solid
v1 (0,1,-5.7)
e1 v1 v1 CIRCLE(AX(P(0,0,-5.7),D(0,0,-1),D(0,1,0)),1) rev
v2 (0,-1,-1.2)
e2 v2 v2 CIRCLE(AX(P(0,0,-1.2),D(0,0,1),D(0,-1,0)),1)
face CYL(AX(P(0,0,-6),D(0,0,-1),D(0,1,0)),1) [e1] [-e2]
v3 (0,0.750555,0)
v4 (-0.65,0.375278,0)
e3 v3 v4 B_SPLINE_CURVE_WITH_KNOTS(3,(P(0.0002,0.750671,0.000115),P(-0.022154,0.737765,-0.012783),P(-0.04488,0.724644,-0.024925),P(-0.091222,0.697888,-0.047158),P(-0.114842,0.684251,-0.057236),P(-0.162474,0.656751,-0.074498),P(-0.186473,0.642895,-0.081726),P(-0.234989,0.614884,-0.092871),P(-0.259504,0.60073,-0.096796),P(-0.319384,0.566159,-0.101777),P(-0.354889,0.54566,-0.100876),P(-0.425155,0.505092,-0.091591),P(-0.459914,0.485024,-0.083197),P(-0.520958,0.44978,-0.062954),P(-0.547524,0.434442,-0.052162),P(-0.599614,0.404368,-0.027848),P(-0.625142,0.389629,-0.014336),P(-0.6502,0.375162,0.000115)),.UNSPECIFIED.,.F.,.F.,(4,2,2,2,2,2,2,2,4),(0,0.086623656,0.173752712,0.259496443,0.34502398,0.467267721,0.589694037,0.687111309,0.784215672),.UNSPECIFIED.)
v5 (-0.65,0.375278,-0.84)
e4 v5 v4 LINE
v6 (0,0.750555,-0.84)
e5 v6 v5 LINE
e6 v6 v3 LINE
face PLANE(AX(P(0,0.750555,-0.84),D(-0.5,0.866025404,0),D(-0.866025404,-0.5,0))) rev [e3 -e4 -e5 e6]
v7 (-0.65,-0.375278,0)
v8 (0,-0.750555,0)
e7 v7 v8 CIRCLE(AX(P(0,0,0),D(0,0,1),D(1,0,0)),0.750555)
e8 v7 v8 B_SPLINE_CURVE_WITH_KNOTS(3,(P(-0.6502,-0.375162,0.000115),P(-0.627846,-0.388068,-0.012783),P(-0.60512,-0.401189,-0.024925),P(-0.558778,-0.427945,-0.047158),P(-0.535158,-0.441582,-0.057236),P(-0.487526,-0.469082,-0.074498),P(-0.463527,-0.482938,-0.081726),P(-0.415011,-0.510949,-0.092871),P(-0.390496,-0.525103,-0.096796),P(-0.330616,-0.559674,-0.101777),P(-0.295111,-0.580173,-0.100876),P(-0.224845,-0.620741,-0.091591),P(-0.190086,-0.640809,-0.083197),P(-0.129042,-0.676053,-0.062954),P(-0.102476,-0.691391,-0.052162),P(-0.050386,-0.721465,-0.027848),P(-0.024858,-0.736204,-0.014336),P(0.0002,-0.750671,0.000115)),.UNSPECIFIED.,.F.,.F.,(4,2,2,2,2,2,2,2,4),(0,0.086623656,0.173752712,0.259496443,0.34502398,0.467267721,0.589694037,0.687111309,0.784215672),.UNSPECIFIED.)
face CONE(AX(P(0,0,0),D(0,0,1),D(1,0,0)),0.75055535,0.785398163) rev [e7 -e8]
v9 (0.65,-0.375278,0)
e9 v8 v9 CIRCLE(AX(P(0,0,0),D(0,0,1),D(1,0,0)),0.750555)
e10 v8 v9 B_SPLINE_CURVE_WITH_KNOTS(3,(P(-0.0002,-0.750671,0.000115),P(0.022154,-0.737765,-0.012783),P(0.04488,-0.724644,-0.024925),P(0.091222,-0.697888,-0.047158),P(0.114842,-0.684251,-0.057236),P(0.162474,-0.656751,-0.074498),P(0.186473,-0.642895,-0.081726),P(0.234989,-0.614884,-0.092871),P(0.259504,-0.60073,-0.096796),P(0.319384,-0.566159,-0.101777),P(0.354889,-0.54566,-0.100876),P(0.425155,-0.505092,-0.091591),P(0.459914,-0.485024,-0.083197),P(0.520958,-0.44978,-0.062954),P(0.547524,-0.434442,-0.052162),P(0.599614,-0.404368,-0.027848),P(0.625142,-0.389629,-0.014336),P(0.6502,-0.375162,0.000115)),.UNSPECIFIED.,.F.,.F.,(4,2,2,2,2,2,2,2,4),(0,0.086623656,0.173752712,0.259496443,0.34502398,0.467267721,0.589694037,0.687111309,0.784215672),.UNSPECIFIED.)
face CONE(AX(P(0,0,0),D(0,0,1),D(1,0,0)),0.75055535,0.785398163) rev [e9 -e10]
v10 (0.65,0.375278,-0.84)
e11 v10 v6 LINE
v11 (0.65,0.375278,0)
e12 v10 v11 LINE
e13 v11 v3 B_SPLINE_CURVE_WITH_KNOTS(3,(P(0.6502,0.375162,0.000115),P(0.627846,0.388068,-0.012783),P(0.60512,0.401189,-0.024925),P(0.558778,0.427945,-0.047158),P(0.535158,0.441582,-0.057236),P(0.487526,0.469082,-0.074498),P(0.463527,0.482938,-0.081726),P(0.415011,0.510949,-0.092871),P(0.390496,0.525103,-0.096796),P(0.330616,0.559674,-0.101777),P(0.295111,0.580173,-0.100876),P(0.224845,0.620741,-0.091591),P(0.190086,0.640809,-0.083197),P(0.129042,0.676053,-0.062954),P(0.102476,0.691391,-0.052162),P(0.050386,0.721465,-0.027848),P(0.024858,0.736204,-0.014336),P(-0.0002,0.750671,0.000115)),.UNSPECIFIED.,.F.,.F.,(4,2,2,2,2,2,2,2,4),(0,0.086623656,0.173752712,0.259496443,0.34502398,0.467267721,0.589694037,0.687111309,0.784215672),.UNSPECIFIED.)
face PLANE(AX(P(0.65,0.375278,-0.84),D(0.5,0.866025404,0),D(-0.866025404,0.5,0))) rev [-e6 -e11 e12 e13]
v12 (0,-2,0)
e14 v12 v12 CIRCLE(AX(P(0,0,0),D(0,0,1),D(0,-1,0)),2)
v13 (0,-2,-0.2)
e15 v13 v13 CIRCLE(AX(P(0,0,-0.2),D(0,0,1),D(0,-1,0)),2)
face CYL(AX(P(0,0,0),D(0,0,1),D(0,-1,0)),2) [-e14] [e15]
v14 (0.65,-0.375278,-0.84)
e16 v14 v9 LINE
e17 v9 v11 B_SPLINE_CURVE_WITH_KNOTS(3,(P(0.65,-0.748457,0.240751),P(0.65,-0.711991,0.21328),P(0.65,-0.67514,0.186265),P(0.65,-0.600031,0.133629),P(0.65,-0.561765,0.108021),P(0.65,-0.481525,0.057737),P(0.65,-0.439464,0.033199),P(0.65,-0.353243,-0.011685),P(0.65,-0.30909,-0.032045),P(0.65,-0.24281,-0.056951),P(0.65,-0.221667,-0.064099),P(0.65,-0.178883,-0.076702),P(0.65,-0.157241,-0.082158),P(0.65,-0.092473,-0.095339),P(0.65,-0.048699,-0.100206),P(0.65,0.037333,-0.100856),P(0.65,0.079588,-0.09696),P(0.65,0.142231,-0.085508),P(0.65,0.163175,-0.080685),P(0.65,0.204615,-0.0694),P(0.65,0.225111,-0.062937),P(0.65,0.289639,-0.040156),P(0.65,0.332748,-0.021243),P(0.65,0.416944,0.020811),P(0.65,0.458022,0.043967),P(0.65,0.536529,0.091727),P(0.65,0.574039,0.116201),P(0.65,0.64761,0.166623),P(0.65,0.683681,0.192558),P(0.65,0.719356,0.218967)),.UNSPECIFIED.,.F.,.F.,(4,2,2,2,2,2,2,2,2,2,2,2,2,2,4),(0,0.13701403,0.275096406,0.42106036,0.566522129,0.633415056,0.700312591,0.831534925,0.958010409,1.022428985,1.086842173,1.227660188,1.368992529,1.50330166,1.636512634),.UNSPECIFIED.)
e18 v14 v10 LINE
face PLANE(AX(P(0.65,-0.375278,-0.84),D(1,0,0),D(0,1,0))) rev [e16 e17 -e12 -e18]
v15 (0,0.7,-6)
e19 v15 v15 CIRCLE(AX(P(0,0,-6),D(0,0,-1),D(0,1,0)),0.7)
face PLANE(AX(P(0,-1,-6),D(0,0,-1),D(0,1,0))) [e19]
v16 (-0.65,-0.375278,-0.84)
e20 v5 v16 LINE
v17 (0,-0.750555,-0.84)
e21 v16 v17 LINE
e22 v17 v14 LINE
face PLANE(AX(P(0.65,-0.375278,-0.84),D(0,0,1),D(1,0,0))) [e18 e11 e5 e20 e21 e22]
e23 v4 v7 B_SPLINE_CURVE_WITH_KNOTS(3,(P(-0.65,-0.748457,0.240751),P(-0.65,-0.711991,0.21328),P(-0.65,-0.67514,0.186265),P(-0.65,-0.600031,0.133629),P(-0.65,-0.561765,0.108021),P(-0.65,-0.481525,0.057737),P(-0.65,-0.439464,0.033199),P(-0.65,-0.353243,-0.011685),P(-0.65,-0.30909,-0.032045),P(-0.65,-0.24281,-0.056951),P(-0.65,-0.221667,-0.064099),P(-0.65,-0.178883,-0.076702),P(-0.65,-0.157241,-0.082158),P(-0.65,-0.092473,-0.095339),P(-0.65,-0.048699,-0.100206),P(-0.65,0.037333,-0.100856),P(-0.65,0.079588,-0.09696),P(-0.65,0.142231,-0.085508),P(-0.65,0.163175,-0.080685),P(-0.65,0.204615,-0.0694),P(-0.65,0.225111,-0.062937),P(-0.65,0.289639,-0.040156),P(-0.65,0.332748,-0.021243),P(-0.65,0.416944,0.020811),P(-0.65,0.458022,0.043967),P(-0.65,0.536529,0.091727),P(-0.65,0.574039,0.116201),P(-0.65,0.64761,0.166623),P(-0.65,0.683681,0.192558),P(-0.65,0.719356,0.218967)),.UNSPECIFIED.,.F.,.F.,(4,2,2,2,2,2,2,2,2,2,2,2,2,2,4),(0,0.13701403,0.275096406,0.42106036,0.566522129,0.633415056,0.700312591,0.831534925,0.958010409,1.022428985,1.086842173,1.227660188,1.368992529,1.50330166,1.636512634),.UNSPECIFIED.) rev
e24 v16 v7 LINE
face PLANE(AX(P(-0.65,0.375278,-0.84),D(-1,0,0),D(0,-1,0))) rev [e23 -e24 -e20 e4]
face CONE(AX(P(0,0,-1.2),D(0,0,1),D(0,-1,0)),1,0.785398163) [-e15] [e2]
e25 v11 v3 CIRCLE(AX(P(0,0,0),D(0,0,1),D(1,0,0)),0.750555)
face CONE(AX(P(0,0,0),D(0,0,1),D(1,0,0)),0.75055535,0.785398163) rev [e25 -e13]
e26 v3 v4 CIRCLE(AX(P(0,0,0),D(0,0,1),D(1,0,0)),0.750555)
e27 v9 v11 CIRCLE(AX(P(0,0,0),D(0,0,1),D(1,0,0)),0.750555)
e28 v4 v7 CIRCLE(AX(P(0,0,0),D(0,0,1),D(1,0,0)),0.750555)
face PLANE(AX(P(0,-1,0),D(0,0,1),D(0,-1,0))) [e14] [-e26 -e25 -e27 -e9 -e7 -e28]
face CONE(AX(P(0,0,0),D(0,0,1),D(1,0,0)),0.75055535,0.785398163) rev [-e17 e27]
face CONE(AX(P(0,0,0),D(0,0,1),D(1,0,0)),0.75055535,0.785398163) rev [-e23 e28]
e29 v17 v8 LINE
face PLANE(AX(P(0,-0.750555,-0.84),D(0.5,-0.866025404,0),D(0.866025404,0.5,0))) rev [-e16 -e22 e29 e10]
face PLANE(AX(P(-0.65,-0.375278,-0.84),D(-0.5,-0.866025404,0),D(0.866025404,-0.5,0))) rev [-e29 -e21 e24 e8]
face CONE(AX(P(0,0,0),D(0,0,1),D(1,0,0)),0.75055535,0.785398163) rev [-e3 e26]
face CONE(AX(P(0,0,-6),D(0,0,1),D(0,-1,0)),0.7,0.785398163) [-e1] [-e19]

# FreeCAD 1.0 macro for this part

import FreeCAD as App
import Part
import Sketcher

V = App.Vector
Q = App.Units.Quantity


def edges_at(feature, points):
    """Names of the edges that pass closest to the given points."""
    edges = feature.Shape.Edges
    near = lambda p: min(range(len(edges)), key=lambda i: edges[i].distToShape(Part.Vertex(*p))[0])
    return sorted({f"Edge{near(p) + 1}" for p in points})


def add_polygon(sketch, points):
    """Adds a closed chain of lines whose ends are joined by coincident constraints."""
    first, n = sketch.GeometryCount, len(points)
    for a, b in zip(points, points[1:] + points[:1]):
        sketch.addGeometry(Part.LineSegment(App.Vector(*a, 0), App.Vector(*b, 0)), False)
    for i in range(n):
        sketch.addConstraint(Sketcher.Constraint("Coincident", first + i, 2, first + (i + 1) % n, 1))

doc = App.newDocument("Part")
body = doc.addObject("PartDesign::Body", "Body")

sketch1 = body.newObject("Sketcher::SketchObject", "Sketch")
sketch1.AttachmentSupport = (doc.getObject("YZ_Plane"), [""])
sketch1.MapMode = "FlatFace"
add_polygon(sketch1, [(1, 0), (0, 0), (0, -6), (1, -6)])
sketch1.addConstraint([
    Sketcher.Constraint("Horizontal", 0),
    Sketcher.Constraint("Vertical", 1),
    Sketcher.Constraint("Horizontal", 2),
    Sketcher.Constraint("Vertical", 3),
    Sketcher.Constraint("Coincident", 0, 2, -1, 1),
    Sketcher.Constraint("DistanceX", 0, 2, 0, 1, Q("1 mm")),
    Sketcher.Constraint("DistanceY", 1, 2, 1, 1, Q("6 mm")),
])
revolution = body.newObject("PartDesign::Revolution", "Revolution")
revolution.Profile = sketch1
revolution.ReferenceAxis = (sketch1, ["V_Axis"])
revolution.Angle = 360
doc.recompute()

chamfer = body.newObject("PartDesign::Chamfer", "Chamfer")
chamfer.Base = (revolution, edges_at(revolution, [(0, -1, -6)]))
chamfer.Size = 0.3

sketch2 = body.newObject("Sketcher::SketchObject", "Sketch001")
sketch2.AttachmentSupport = (doc.getObject("YZ_Plane"), [""])
sketch2.MapMode = "FlatFace"
add_polygon(sketch2, [(2, -0.2), (2, 0), (0, 0), (0, -1.2), (1, -1.2)])
sketch2.addConstraint([
    Sketcher.Constraint("Vertical", 0),
    Sketcher.Constraint("Horizontal", 1),
    Sketcher.Constraint("Vertical", 2),
    Sketcher.Constraint("Horizontal", 3),
    Sketcher.Constraint("Coincident", 1, 2, -1, 1),
    Sketcher.Constraint("DistanceX", 1, 2, 1, 1, Q("2 mm")),
    Sketcher.Constraint("DistanceX", 3, 1, 3, 2, Q("1 mm")),
    Sketcher.Constraint("Angle", 4, Q("45 deg")),
    Sketcher.Constraint("DistanceY", 0, 1, 0, 2, Q("0.2 mm")),
])
revolution2 = body.newObject("PartDesign::Revolution", "Revolution001")
revolution2.Profile = sketch2
revolution2.ReferenceAxis = (sketch2, ["V_Axis"])
revolution2.Angle = 360

sketch3 = body.newObject("Sketcher::SketchObject", "Sketch002")
sketch3.AttachmentSupport = (doc.getObject("YZ_Plane"), [""])
sketch3.MapMode = "FlatFace"
add_polygon(sketch3, [(0, -1.2), (-1, -1.2), (0, -2.2)])
sketch3.addConstraint([
    Sketcher.Constraint("Horizontal", 0),
    Sketcher.Constraint("Vertical", 2),
    Sketcher.Constraint("PointOnObject", 1, 2, -2),
    Sketcher.Constraint("Equal", 0, 2),
    Sketcher.Constraint("DistanceX", 0, 2, 0, 1, Q("1 mm")),
    Sketcher.Constraint("DistanceY", 0, 2, -1, 1, Q("1.2 mm")),
])
revolution3 = body.newObject("PartDesign::Revolution", "Revolution002")
revolution3.Profile = sketch3
revolution3.ReferenceAxis = (sketch3, ["V_Axis"])
revolution3.Angle = 360

sketch4 = body.newObject("Sketcher::SketchObject", "Sketch003")
sketch4.AttachmentSupport = (doc.getObject("XY_Plane"), [""])
sketch4.MapMode = "FlatFace"
add_polygon(sketch4, [(0.65, -0.375278), (0.65, 0.375278), (0, 0.750555), (-0.65, 0.375278), (-0.65, -0.375278), (0, -0.750555)])
sketch4.addConstraint([
    Sketcher.Constraint("Vertical", 0),
    Sketcher.Constraint("Vertical", 3),
    Sketcher.Constraint("Symmetric", 0, 2, 3, 2, -1, 1),
    Sketcher.Constraint("Symmetric", 1, 2, 4, 2, -1, 1),
    Sketcher.Constraint("PointOnObject", 1, 2, -2),
    Sketcher.Constraint("Parallel", 2, 5),
    Sketcher.Constraint("Horizontal", 0, 2, 2, 2),
    Sketcher.Constraint("Angle", 1, Q("150 deg")),
    Sketcher.Constraint("DistanceX", 2, 2, 0, 2, Q("1.3 mm")),
    Sketcher.Constraint("DistanceY", 0, 1, 0, 2, Q("0.750555 mm")),
])
pocket1 = body.newObject("PartDesign::Pocket", "Pocket")
pocket1.Profile = sketch4
pocket1.Length = 0.84

sketch5 = body.newObject("Sketcher::SketchObject", "Sketch004")
sketch5.AttachmentSupport = (doc.getObject("YZ_Plane"), [""])
sketch5.MapMode = "FlatFace"
add_polygon(sketch5, [(0, 0), (-0.750555, 0), (0, -0.750555)])
sketch5.addConstraint([
    Sketcher.Constraint("Horizontal", 0),
    Sketcher.Constraint("Vertical", 2),
    Sketcher.Constraint("Coincident", 2, 2, -1, 1),
    Sketcher.Constraint("Equal", 0, 2),
    Sketcher.Constraint("DistanceX", 0, 2, 0, 1, Q("0.750555 mm")),
])
groove = body.newObject("PartDesign::Groove", "Groove")
groove.Profile = sketch5
groove.ReferenceAxis = (sketch5, ["V_Axis"])
groove.Angle = 360

doc.recompute()
